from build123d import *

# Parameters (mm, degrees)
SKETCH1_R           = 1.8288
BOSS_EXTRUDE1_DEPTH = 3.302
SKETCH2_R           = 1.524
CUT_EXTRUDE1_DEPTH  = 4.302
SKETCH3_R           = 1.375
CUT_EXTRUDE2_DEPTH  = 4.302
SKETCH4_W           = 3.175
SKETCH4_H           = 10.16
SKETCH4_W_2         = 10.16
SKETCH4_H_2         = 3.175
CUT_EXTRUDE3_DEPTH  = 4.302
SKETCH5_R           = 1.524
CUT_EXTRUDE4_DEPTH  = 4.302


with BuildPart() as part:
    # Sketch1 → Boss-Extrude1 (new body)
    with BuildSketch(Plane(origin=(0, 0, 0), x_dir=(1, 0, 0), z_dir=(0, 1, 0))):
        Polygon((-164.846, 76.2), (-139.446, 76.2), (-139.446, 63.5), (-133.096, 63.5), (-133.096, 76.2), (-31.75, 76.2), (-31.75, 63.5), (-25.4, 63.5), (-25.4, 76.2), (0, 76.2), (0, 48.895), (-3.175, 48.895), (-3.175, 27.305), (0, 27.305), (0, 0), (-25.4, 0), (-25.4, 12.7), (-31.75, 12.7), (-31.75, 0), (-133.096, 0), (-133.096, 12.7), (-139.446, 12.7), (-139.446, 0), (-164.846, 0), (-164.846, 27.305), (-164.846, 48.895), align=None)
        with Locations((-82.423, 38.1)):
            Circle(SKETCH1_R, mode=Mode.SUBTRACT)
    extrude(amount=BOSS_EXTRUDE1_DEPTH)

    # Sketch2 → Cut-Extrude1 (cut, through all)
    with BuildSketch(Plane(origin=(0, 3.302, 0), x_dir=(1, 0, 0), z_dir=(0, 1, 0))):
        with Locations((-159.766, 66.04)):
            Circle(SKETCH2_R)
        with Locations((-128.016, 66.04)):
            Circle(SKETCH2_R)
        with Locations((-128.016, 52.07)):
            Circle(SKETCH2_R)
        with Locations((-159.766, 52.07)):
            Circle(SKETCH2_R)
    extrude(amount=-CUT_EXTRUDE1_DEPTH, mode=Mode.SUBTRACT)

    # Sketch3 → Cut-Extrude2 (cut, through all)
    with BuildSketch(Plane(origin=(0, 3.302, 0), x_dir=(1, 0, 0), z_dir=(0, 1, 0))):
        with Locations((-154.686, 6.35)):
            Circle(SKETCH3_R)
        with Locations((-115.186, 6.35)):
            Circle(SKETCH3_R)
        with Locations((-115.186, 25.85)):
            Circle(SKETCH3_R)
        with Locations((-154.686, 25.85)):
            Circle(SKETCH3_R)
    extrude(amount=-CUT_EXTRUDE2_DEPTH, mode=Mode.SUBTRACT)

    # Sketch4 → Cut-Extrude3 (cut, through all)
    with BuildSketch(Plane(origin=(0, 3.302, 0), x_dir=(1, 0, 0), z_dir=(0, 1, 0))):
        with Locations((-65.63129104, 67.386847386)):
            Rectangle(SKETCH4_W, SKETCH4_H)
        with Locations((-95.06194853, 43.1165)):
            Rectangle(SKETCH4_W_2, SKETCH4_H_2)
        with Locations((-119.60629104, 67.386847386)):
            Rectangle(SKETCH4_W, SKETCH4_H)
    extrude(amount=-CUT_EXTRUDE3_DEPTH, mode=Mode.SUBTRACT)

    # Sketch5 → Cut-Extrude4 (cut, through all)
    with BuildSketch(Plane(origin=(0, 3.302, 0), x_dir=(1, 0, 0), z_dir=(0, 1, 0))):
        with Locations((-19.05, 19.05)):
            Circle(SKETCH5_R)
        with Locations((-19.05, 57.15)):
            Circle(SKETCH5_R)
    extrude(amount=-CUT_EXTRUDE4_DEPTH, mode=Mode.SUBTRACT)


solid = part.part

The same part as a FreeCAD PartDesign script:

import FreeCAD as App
import Part
import Sketcher
from FreeCAD import Vector
Q = App.Units.Quantity

doc = App.newDocument("Part")
body = doc.addObject("PartDesign::Body", "Body")

# Sketch on XZ plane
sketch1 = body.newObject("Sketcher::SketchObject", "Sketch")
sketch1.AttachmentSupport = (doc.getObject("XZ_Plane"), [""])
sketch1.MapMode = "FlatFace"
sketch1.addGeometry(Part.LineSegment(Vector(-139.4, -76.2, 0), Vector(-164.8, -76.2, 0)), False)
sketch1.addGeometry(Part.LineSegment(Vector(-164.8, -76.2, 0), Vector(-164.8, 0, 0)), False)
sketch1.addGeometry(Part.LineSegment(Vector(-164.8, 0, 0), Vector(-139.4, 0, 0)), False)
sketch1.addGeometry(Part.LineSegment(Vector(-139.4, 0, 0), Vector(-139.4, -12.7, 0)), False)
sketch1.addGeometry(Part.LineSegment(Vector(-139.4, -12.7, 0), Vector(-133.1, -12.7, 0)), False)
sketch1.addGeometry(Part.LineSegment(Vector(-133.1, -12.7, 0), Vector(-133.1, 0, 0)), False)
sketch1.addGeometry(Part.LineSegment(Vector(-133.1, 0, 0), Vector(-31.8, 0, 0)), False)
sketch1.addGeometry(Part.LineSegment(Vector(-31.8, 0, 0), Vector(-31.8, -12.7, 0)), False)
sketch1.addGeometry(Part.LineSegment(Vector(-31.8, -12.7, 0), Vector(-25.4, -12.7, 0)), False)
sketch1.addGeometry(Part.LineSegment(Vector(-25.4, -12.7, 0), Vector(-25.4, 0, 0)), False)
sketch1.addGeometry(Part.LineSegment(Vector(-25.4, 0, 0), Vector(0, 0, 0)), False)
sketch1.addGeometry(Part.LineSegment(Vector(0, 0, 0), Vector(0, -27.3, 0)), False)
sketch1.addGeometry(Part.LineSegment(Vector(0, -27.3, 0), Vector(-3.2, -27.3, 0)), False)
sketch1.addGeometry(Part.LineSegment(Vector(-3.2, -27.3, 0), Vector(-3.2, -48.9, 0)), False)
sketch1.addGeometry(Part.LineSegment(Vector(-3.2, -48.9, 0), Vector(0, -48.9, 0)), False)
sketch1.addGeometry(Part.LineSegment(Vector(0, -48.9, 0), Vector(0, -76.2, 0)), False)
sketch1.addGeometry(Part.LineSegment(Vector(0, -76.2, 0), Vector(-25.4, -76.2, 0)), False)
sketch1.addGeometry(Part.LineSegment(Vector(-25.4, -76.2, 0), Vector(-25.4, -63.5, 0)), False)
sketch1.addGeometry(Part.LineSegment(Vector(-25.4, -63.5, 0), Vector(-31.8, -63.5, 0)), False)
sketch1.addGeometry(Part.LineSegment(Vector(-31.8, -63.5, 0), Vector(-31.8, -76.2, 0)), False)
sketch1.addGeometry(Part.LineSegment(Vector(-31.8, -76.2, 0), Vector(-133.1, -76.2, 0)), False)
sketch1.addGeometry(Part.LineSegment(Vector(-133.1, -76.2, 0), Vector(-133.1, -63.5, 0)), False)
sketch1.addGeometry(Part.LineSegment(Vector(-133.1, -63.5, 0), Vector(-139.4, -63.5, 0)), False)
sketch1.addGeometry(Part.LineSegment(Vector(-139.4, -63.5, 0), Vector(-139.4, -76.2, 0)), False)
sketch1.addGeometry(Part.Circle(Vector(-82.4, -38.1, 0), Vector(0, 0, 1), 1.8), False)
sketch1.addConstraint(Sketcher.Constraint("Coincident", 0, 2, 1, 1))
sketch1.addConstraint(Sketcher.Constraint("Coincident", 1, 2, 2, 1))
sketch1.addConstraint(Sketcher.Constraint("Coincident", 2, 2, 3, 1))
sketch1.addConstraint(Sketcher.Constraint("Coincident", 3, 2, 4, 1))
sketch1.addConstraint(Sketcher.Constraint("Coincident", 4, 2, 5, 1))
sketch1.addConstraint(Sketcher.Constraint("Coincident", 5, 2, 6, 1))
sketch1.addConstraint(Sketcher.Constraint("Coincident", 6, 2, 7, 1))
sketch1.addConstraint(Sketcher.Constraint("Coincident", 7, 2, 8, 1))
sketch1.addConstraint(Sketcher.Constraint("Coincident", 8, 2, 9, 1))
sketch1.addConstraint(Sketcher.Constraint("Coincident", 9, 2, 10, 1))
sketch1.addConstraint(Sketcher.Constraint("Coincident", 10, 2, 11, 1))
sketch1.addConstraint(Sketcher.Constraint("Coincident", 11, 2, 12, 1))
sketch1.addConstraint(Sketcher.Constraint("Coincident", 12, 2, 13, 1))
sketch1.addConstraint(Sketcher.Constraint("Coincident", 13, 2, 14, 1))
sketch1.addConstraint(Sketcher.Constraint("Coincident", 14, 2, 15, 1))
sketch1.addConstraint(Sketcher.Constraint("Coincident", 15, 2, 16, 1))
sketch1.addConstraint(Sketcher.Constraint("Coincident", 16, 2, 17, 1))
sketch1.addConstraint(Sketcher.Constraint("Coincident", 17, 2, 18, 1))
sketch1.addConstraint(Sketcher.Constraint("Coincident", 18, 2, 19, 1))
sketch1.addConstraint(Sketcher.Constraint("Coincident", 19, 2, 20, 1))
sketch1.addConstraint(Sketcher.Constraint("Coincident", 20, 2, 21, 1))
sketch1.addConstraint(Sketcher.Constraint("Coincident", 21, 2, 22, 1))
sketch1.addConstraint(Sketcher.Constraint("Coincident", 22, 2, 23, 1))
sketch1.addConstraint(Sketcher.Constraint("Coincident", 23, 2, 0, 1))
sketch1.addConstraint(Sketcher.Constraint("Horizontal", 0))
sketch1.addConstraint(Sketcher.Constraint("Vertical", 1))
sketch1.addConstraint(Sketcher.Constraint("Horizontal", 2))
sketch1.addConstraint(Sketcher.Constraint("Vertical", 3))
sketch1.addConstraint(Sketcher.Constraint("Horizontal", 4))
sketch1.addConstraint(Sketcher.Constraint("Vertical", 5))
sketch1.addConstraint(Sketcher.Constraint("Horizontal", 6))
sketch1.addConstraint(Sketcher.Constraint("Vertical", 7))
sketch1.addConstraint(Sketcher.Constraint("Horizontal", 8))
sketch1.addConstraint(Sketcher.Constraint("Vertical", 9))
sketch1.addConstraint(Sketcher.Constraint("Horizontal", 10))
sketch1.addConstraint(Sketcher.Constraint("Vertical", 11))
sketch1.addConstraint(Sketcher.Constraint("Horizontal", 12))
sketch1.addConstraint(Sketcher.Constraint("Vertical", 13))
sketch1.addConstraint(Sketcher.Constraint("Horizontal", 14))
sketch1.addConstraint(Sketcher.Constraint("Vertical", 15))
sketch1.addConstraint(Sketcher.Constraint("Horizontal", 16))
sketch1.addConstraint(Sketcher.Constraint("Vertical", 17))
sketch1.addConstraint(Sketcher.Constraint("Horizontal", 18))
sketch1.addConstraint(Sketcher.Constraint("Vertical", 19))
sketch1.addConstraint(Sketcher.Constraint("Horizontal", 20))
sketch1.addConstraint(Sketcher.Constraint("Vertical", 21))
sketch1.addConstraint(Sketcher.Constraint("Horizontal", 22))
sketch1.addConstraint(Sketcher.Constraint("Vertical", 23))
sketch1.addConstraint(Sketcher.Constraint("Coincident", 10, 2, -1, 1))
sketch1.addConstraint(Sketcher.Constraint("PointOnObject", 1, 2, -1))
sketch1.addConstraint(Sketcher.Constraint("PointOnObject", 5, 2, -1))
sketch1.addConstraint(Sketcher.Constraint("PointOnObject", 14, 2, -2))
sketch1.addConstraint(Sketcher.Constraint("Horizontal", 4, 2, 7, 2))
sketch1.addConstraint(Sketcher.Constraint("Horizontal", 0, 2, 15, 2))
sketch1.addConstraint(Sketcher.Constraint("Horizontal", 16, 2, 19, 2))
sketch1.addConstraint(Sketcher.Constraint("Horizontal", 18, 2, 21, 2))
sketch1.addConstraint(Sketcher.Constraint("Vertical", 9, 2, 16, 2))
sketch1.addConstraint(Sketcher.Constraint("Vertical", 7, 2, 18, 2))
sketch1.addConstraint(Sketcher.Constraint("Vertical", 5, 2, 20, 2))
sketch1.addConstraint(Sketcher.Constraint("Vertical", 3, 2, 22, 2))
sketch1.addConstraint(Sketcher.Constraint("Equal", 4, 8))
sketch1.addConstraint(Sketcher.Constraint("Equal", 2, 10))
sketch1.addConstraint(Sketcher.Constraint("Equal", 11, 15))
sketch1.addConstraint(Sketcher.Constraint("Equal", 9, 17))
sketch1.addConstraint(Sketcher.Constraint("DistanceX", 0, 2, 0, 1, Q("1 in")))
sketch1.addConstraint(Sketcher.Constraint("DistanceY", 1, 1, 1, 2, Q("3 in")))
sketch1.addConstraint(Sketcher.Constraint("Diameter", 24, Q("0.144 in")))
sketch1.addConstraint(Sketcher.Constraint("DistanceY", 3, 2, 3, 1, Q("0.5 in")))
sketch1.addConstraint(Sketcher.Constraint("DistanceY", 24, 3, 3, 2, Q("1 in")))
sketch1.addConstraint(Sketcher.Constraint("DistanceX", 4, 1, 4, 2, Q("0.25 in")))
sketch1.addConstraint(Sketcher.Constraint("DistanceX", 6, 1, 6, 2, Q("3.99 in")))
sketch1.addConstraint(Sketcher.Constraint("DistanceY", 13, 2, 13, 1, Q("0.85 in")))
sketch1.addConstraint(Sketcher.Constraint("DistanceX", 12, 2, 12, 1, Q("0.125 in")))
sketch1.addConstraint(Sketcher.Constraint("DistanceX", 24, 3, -1, 1, Q("3.245 in")))
pad1 = body.newObject("PartDesign::Pad", "Pad")
pad1.Profile = sketch1
pad1.Length = Q("0.13 in")
pad1.Reversed = True

# Sketch on XZ plane
sketch2 = body.newObject("Sketcher::SketchObject", "Sketch001")
sketch2.AttachmentSupport = (doc.getObject("XZ_Plane"), [""])
sketch2.MapMode = "FlatFace"
sketch2.AttachmentOffset = App.Placement(Vector(0, 0, -0.13 * 25.4), App.Rotation())
sketch2.addGeometry(Part.Circle(Vector(-159.8, -66, 0), Vector(0, 0, 1), 1.5), False)
sketch2.addGeometry(Part.Circle(Vector(-128, -66, 0), Vector(0, 0, 1), 1.5), False)
sketch2.addGeometry(Part.Circle(Vector(-128, -52.1, 0), Vector(0, 0, 1), 1.5), False)
sketch2.addGeometry(Part.Circle(Vector(-159.8, -52.1, 0), Vector(0, 0, 1), 1.5), False)
sketch2.addConstraint(Sketcher.Constraint("Equal", 0, 1))
sketch2.addConstraint(Sketcher.Constraint("Equal", 1, 2))
sketch2.addConstraint(Sketcher.Constraint("Equal", 2, 3))
sketch2.addConstraint(Sketcher.Constraint("Horizontal", 0, 3, 1, 3))
sketch2.addConstraint(Sketcher.Constraint("Horizontal", 2, 3, 3, 3))
sketch2.addConstraint(Sketcher.Constraint("Vertical", 1, 3, 2, 3))
sketch2.addConstraint(Sketcher.Constraint("Vertical", 0, 3, 3, 3))
sketch2.addConstraint(Sketcher.Constraint("Diameter", 0, Q("0.12 in")))
sketch2.addConstraint(Sketcher.Constraint("DistanceY", 0, 3, -1, 1, Q("2.6 in")))
sketch2.addConstraint(Sketcher.Constraint("DistanceX", 0, 3, -1, 1, Q("6.29 in")))
sketch2.addConstraint(Sketcher.Constraint("DistanceX", 1, 3, -1, 1, Q("5.04 in")))
sketch2.addConstraint(Sketcher.Constraint("DistanceY", 2, 3, -1, 1, Q("2.05 in")))
pocket1 = body.newObject("PartDesign::Pocket", "Pocket")
pocket1.Profile = sketch2
pocket1.Type = "ThroughAll"
pocket1.Reversed = True

# Sketch on XZ plane
sketch3 = body.newObject("Sketcher::SketchObject", "Sketch002")
sketch3.AttachmentSupport = (doc.getObject("XZ_Plane"), [""])
sketch3.MapMode = "FlatFace"
sketch3.AttachmentOffset = App.Placement(Vector(0, 0, -0.13 * 25.4), App.Rotation())
sketch3.addGeometry(Part.Circle(Vector(-154.7, -6.3, 0), Vector(0, 0, 1), 1.4), False)
sketch3.addGeometry(Part.Circle(Vector(-115.2, -6.3, 0), Vector(0, 0, 1), 1.4), False)
sketch3.addGeometry(Part.Circle(Vector(-115.2, -25.9, 0), Vector(0, 0, 1), 1.4), False)
sketch3.addGeometry(Part.Circle(Vector(-154.7, -25.9, 0), Vector(0, 0, 1), 1.4), False)
sketch3.addConstraint(Sketcher.Constraint("Equal", 0, 1))
sketch3.addConstraint(Sketcher.Constraint("Equal", 1, 2))
sketch3.addConstraint(Sketcher.Constraint("Equal", 2, 3))
sketch3.addConstraint(Sketcher.Constraint("Horizontal", 0, 3, 1, 3))
sketch3.addConstraint(Sketcher.Constraint("Horizontal", 2, 3, 3, 3))
sketch3.addConstraint(Sketcher.Constraint("Vertical", 1, 3, 2, 3))
sketch3.addConstraint(Sketcher.Constraint("Vertical", 0, 3, 3, 3))
sketch3.addConstraint(Sketcher.Constraint("Diameter", 0, Q("2.75 mm")))
sketch3.addConstraint(Sketcher.Constraint("DistanceX", 0, 3, -1, 1, Q("6.09 in")))
sketch3.addConstraint(Sketcher.Constraint("DistanceY", 0, 3, -1, 1, Q("0.25 in")))
sketch3.addConstraint(Sketcher.Constraint("DistanceX", 1, 3, -1, 1, Q("115.186 mm")))
sketch3.addConstraint(Sketcher.Constraint("DistanceY", 2, 3, -1, 1, Q("25.85 mm")))
pocket2 = body.newObject("PartDesign::Pocket", "Pocket001")
pocket2.Profile = sketch3
pocket2.Type = "ThroughAll"
pocket2.Reversed = True

# Sketch on XZ plane
sketch4 = body.newObject("Sketcher::SketchObject", "Sketch003")
sketch4.AttachmentSupport = (doc.getObject("XZ_Plane"), [""])
sketch4.MapMode = "FlatFace"
sketch4.AttachmentOffset = App.Placement(Vector(0, 0, -0.13 * 25.4), App.Rotation())
sketch4.addGeometry(Part.LineSegment(Vector(-67.2, -72.5, 0), Vector(-67.2, -62.3, 0)), False)
sketch4.addGeometry(Part.LineSegment(Vector(-67.2, -62.3, 0), Vector(-64, -62.3, 0)), False)
sketch4.addGeometry(Part.LineSegment(Vector(-64, -62.3, 0), Vector(-64, -72.5, 0)), False)
sketch4.addGeometry(Part.LineSegment(Vector(-64, -72.5, 0), Vector(-67.2, -72.5, 0)), False)
sketch4.addGeometry(Part.LineSegment(Vector(-100.1, -44.7, 0), Vector(-100.1, -41.5, 0)), False)
sketch4.addGeometry(Part.LineSegment(Vector(-100.1, -41.5, 0), Vector(-90, -41.5, 0)), False)
sketch4.addGeometry(Part.LineSegment(Vector(-90, -41.5, 0), Vector(-90, -44.7, 0)), False)
sketch4.addGeometry(Part.LineSegment(Vector(-90, -44.7, 0), Vector(-100.1, -44.7, 0)), False)
sketch4.addGeometry(Part.LineSegment(Vector(-121.2, -72.5, 0), Vector(-121.2, -62.3, 0)), False)
sketch4.addGeometry(Part.LineSegment(Vector(-121.2, -62.3, 0), Vector(-118, -62.3, 0)), False)
sketch4.addGeometry(Part.LineSegment(Vector(-118, -62.3, 0), Vector(-118, -72.5, 0)), False)
sketch4.addGeometry(Part.LineSegment(Vector(-118, -72.5, 0), Vector(-121.2, -72.5, 0)), False)
sketch4.addConstraint(Sketcher.Constraint("Coincident", 0, 2, 1, 1))
sketch4.addConstraint(Sketcher.Constraint("Coincident", 1, 2, 2, 1))
sketch4.addConstraint(Sketcher.Constraint("Coincident", 2, 2, 3, 1))
sketch4.addConstraint(Sketcher.Constraint("Coincident", 3, 2, 0, 1))
sketch4.addConstraint(Sketcher.Constraint("Coincident", 4, 2, 5, 1))
sketch4.addConstraint(Sketcher.Constraint("Coincident", 5, 2, 6, 1))
sketch4.addConstraint(Sketcher.Constraint("Coincident", 6, 2, 7, 1))
sketch4.addConstraint(Sketcher.Constraint("Coincident", 7, 2, 4, 1))
sketch4.addConstraint(Sketcher.Constraint("Coincident", 8, 2, 9, 1))
sketch4.addConstraint(Sketcher.Constraint("Coincident", 9, 2, 10, 1))
sketch4.addConstraint(Sketcher.Constraint("Coincident", 10, 2, 11, 1))
sketch4.addConstraint(Sketcher.Constraint("Coincident", 11, 2, 8, 1))
sketch4.addConstraint(Sketcher.Constraint("Vertical", 0))
sketch4.addConstraint(Sketcher.Constraint("Horizontal", 1))
sketch4.addConstraint(Sketcher.Constraint("Vertical", 2))
sketch4.addConstraint(Sketcher.Constraint("Horizontal", 3))
sketch4.addConstraint(Sketcher.Constraint("Vertical", 4))
sketch4.addConstraint(Sketcher.Constraint("Horizontal", 5))
sketch4.addConstraint(Sketcher.Constraint("Vertical", 6))
sketch4.addConstraint(Sketcher.Constraint("Horizontal", 7))
sketch4.addConstraint(Sketcher.Constraint("Vertical", 8))
sketch4.addConstraint(Sketcher.Constraint("Horizontal", 9))
sketch4.addConstraint(Sketcher.Constraint("Vertical", 10))
sketch4.addConstraint(Sketcher.Constraint("Horizontal", 11))
sketch4.addConstraint(Sketcher.Constraint("Horizontal", 1, 2, 8, 2))
sketch4.addConstraint(Sketcher.Constraint("Horizontal", 3, 2, 10, 2))
sketch4.addConstraint(Sketcher.Constraint("Equal", 3, 9))
sketch4.addConstraint(Sketcher.Constraint("Equal", 7, 0))
sketch4.addConstraint(Sketcher.Constraint("Equal", 11, 4))
sketch4.addConstraint(Sketcher.Constraint("DistanceX", 5, 1, 5, 2, Q("0.4 in")))
sketch4.addConstraint(Sketcher.Constraint("DistanceX", 1, 1, 1, 2, Q("0.125 in")))
sketch4.addConstraint(Sketcher.Constraint("DistanceY", 6, 2, -1, 1, Q("1.76 in")))
sketch4.addConstraint(Sketcher.Constraint("DistanceX", 8, 2, 0, 2, Q("2.125 in")))
sketch4.addConstraint(Sketcher.Constraint("DistanceX", 0, 2, -1, 1, Q("67.218791 mm")))
sketch4.addConstraint(Sketcher.Constraint("DistanceX", 4, 2, -1, 1, Q("100.141949 mm")))
sketch4.addConstraint(Sketcher.Constraint("DistanceY", 0, 2, -1, 1, Q("62.306847 mm")))
pocket3 = body.newObject("PartDesign::Pocket", "Pocket002")
pocket3.Profile = sketch4
pocket3.Type = "ThroughAll"
pocket3.Reversed = True

# Sketch on XZ plane
sketch5 = body.newObject("Sketcher::SketchObject", "Sketch004")
sketch5.AttachmentSupport = (doc.getObject("XZ_Plane"), [""])
sketch5.MapMode = "FlatFace"
sketch5.AttachmentOffset = App.Placement(Vector(0, 0, -0.13 * 25.4), App.Rotation())
sketch5.addGeometry(Part.Circle(Vector(-19.1, -19.1, 0), Vector(0, 0, 1), 1.5), False)
sketch5.addGeometry(Part.Circle(Vector(-19.1, -57.1, 0), Vector(0, 0, 1), 1.5), False)
sketch5.addConstraint(Sketcher.Constraint("Equal", 0, 1))
sketch5.addConstraint(Sketcher.Constraint("Vertical", 0, 3, 1, 3))
sketch5.addConstraint(Sketcher.Constraint("Diameter", 0, Q("0.12 in")))
sketch5.addConstraint(Sketcher.Constraint("DistanceY", 1, 3, 0, 3, Q("1.5 in")))
sketch5.addConstraint(Sketcher.Constraint("DistanceX", 0, 3, -1, 1, Q("0.75 in")))
sketch5.addConstraint(Sketcher.Constraint("DistanceY", 0, 3, -1, 1, Q("0.75 in")))
pocket4 = body.newObject("PartDesign::Pocket", "Pocket003")
pocket4.Profile = sketch5
pocket4.Type = "ThroughAll"
pocket4.Reversed = True

doc.recompute()
